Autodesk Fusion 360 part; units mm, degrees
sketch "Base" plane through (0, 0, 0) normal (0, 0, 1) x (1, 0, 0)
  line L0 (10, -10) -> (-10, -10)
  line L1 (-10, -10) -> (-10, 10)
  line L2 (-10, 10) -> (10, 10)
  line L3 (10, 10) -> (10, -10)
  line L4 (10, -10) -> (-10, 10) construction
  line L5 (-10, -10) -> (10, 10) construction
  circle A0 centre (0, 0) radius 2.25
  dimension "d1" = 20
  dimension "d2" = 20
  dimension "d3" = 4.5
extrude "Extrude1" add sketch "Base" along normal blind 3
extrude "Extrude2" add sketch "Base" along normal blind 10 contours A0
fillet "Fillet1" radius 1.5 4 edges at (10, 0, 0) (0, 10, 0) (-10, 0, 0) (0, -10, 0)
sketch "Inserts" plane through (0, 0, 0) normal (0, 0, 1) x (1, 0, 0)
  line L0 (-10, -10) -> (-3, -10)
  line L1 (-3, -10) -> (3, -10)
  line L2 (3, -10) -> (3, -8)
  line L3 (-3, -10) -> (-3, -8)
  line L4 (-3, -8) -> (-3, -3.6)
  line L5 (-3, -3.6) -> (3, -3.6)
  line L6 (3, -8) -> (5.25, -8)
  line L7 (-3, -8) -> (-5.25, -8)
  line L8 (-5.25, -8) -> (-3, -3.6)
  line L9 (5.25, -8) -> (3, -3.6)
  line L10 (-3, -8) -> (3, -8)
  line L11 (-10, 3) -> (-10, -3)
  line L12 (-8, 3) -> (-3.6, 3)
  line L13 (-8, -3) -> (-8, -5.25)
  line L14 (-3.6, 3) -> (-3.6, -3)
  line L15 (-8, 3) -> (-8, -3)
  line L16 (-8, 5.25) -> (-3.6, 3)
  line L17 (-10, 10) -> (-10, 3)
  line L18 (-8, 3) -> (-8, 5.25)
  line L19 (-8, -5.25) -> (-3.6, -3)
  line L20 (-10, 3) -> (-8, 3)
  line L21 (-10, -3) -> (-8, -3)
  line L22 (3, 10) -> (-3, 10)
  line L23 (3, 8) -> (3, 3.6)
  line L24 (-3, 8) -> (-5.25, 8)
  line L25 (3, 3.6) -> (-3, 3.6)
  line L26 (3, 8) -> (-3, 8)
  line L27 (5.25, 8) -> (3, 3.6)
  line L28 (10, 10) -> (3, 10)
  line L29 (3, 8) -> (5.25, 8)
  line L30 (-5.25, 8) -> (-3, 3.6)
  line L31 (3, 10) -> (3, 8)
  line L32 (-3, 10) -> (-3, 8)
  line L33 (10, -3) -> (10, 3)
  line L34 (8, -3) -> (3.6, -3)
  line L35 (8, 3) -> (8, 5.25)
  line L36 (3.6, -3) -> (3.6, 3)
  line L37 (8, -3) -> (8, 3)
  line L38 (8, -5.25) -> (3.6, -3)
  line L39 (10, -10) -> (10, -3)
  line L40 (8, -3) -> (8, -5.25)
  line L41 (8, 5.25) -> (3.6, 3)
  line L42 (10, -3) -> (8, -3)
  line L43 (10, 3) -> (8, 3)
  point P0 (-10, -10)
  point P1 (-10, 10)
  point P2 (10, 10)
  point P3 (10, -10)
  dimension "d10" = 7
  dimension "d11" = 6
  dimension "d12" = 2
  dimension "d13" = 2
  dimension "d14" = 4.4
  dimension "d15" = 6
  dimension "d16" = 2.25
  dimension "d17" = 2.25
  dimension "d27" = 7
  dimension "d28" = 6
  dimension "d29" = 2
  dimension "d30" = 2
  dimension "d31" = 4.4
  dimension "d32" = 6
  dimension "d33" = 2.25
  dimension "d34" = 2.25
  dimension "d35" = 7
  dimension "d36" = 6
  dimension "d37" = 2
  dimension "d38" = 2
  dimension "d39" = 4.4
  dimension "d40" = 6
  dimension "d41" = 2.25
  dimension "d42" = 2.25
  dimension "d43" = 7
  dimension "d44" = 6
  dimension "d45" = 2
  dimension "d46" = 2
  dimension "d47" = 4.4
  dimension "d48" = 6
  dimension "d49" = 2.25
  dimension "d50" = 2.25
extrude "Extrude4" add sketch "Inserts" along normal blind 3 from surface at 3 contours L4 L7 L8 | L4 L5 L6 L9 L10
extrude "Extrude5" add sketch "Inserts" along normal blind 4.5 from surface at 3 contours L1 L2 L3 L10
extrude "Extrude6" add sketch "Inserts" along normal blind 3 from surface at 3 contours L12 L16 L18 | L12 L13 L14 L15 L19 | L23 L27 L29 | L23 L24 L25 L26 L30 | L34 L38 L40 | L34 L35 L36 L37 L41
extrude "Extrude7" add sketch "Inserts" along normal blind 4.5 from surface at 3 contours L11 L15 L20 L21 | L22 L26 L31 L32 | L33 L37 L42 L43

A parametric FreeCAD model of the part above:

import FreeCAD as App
import Part
import Sketcher

V = App.Vector
Q = App.Units.Quantity


def edges_at(feature, points):
    """Names of the edges that pass closest to the given points."""
    edges = feature.Shape.Edges
    near = lambda p: min(range(len(edges)), key=lambda i: edges[i].distToShape(Part.Vertex(*p))[0])
    return sorted({f"Edge{near(p) + 1}" for p in points})


def add_polygon(sketch, points):
    """Adds a closed chain of lines whose ends are joined by coincident constraints."""
    first, n = sketch.GeometryCount, len(points)
    for a, b in zip(points, points[1:] + points[:1]):
        sketch.addGeometry(Part.LineSegment(App.Vector(*a, 0), App.Vector(*b, 0)), False)
    for i in range(n):
        sketch.addConstraint(Sketcher.Constraint("Coincident", first + i, 2, first + (i + 1) % n, 1))

doc = App.newDocument("Part")
body = doc.addObject("PartDesign::Body", "Body")

# Sketch on XY plane
sketch1 = doc.addObject("Sketcher::SketchObject", "Sketch")
body.addObject(sketch1)
sketch1.AttachmentSupport = (doc.XY_Plane, [""])
sketch1.MapMode = "FlatFace"
add_polygon(sketch1, [(-10, -10), (10, -10), (10, 10), (-10, 10)])  # lines 0-3
sketch1.addGeometry(Part.Circle(V(0, 0, 0), V(0, 0, 1), 2.25), False)  # 4
sketch1.addConstraint([
    Sketcher.Constraint("Horizontal", 0),
    Sketcher.Constraint("Vertical", 1),
    Sketcher.Constraint("Horizontal", 2),
    Sketcher.Constraint("Vertical", 3),
    Sketcher.Constraint("Coincident", 4, 3, -1, 1),
    Sketcher.Constraint("Symmetric", 0, 2, 2, 2, -1, 1),
    Sketcher.Constraint("Equal", 2, 1),
    Sketcher.Constraint("Diameter", 4, Q("4.5 mm")),
    Sketcher.Constraint("DistanceX", 0, 1, 0, 2, Q("20 mm")),
])
pad1 = doc.addObject("PartDesign::Pad", "Pad")
body.addObject(pad1)
pad1.Profile = sketch1
pad1.Length = 3

# Sketch on XY plane
sketch2 = doc.addObject("Sketcher::SketchObject", "Sketch001")
body.addObject(sketch2)
sketch2.AttachmentSupport = (doc.XY_Plane, [""])
sketch2.MapMode = "FlatFace"
sketch2.addGeometry(Part.Circle(V(0, 0, 0), V(0, 0, 1), 2.25), False)
sketch2.addConstraint([
    Sketcher.Constraint("Coincident", 0, 3, -1, 1),
    Sketcher.Constraint("Diameter", 0, Q("4.5 mm")),
])
pad2 = doc.addObject("PartDesign::Pad", "Pad001")
body.addObject(pad2)
pad2.Profile = sketch2
pad2.Length = 10
doc.recompute()

fillet = doc.addObject("PartDesign::Fillet", "Fillet")
body.addObject(fillet)
fillet.Base = (pad2, edges_at(pad2, [
    (10, 0, 0),
    (0, 10, 0),
    (-10, 0, 0),
    (0, -10, 0),
]))
fillet.Radius = 1.5

# Sketch on XY plane
sketch3 = doc.addObject("Sketcher::SketchObject", "Sketch002")
body.addObject(sketch3)
sketch3.AttachmentSupport = (doc.XY_Plane, [""])
sketch3.MapMode = "FlatFace"
sketch3.AttachmentOffset = App.Placement(V(0, 0, 3), App.Rotation())
add_polygon(sketch3, [(-5.25, -8), (5.25, -8), (3, -3.6), (-3, -3.6)])  # lines 0-3
sketch3.addConstraint([
    Sketcher.Constraint("Horizontal", 0),
    Sketcher.Constraint("Horizontal", 2),
    Sketcher.Constraint("Equal", 1, 3),
    Sketcher.Constraint("DistanceX", 2, 2, 2, 1, Q("6 mm")),
    Sketcher.Constraint("DistanceY", 0, 2, 1, 2, Q("4.4 mm")),
    Sketcher.Constraint("DistanceX", 1, 2, 0, 2, Q("2.25 mm")),
    Sketcher.Constraint("DistanceY", 0, 2, -1, 1, Q("8 mm")),
    Sketcher.Constraint("DistanceX", -1, 1, 1, 2, Q("3 mm")),
])
pad3 = doc.addObject("PartDesign::Pad", "Pad002")
body.addObject(pad3)
pad3.Profile = sketch3
pad3.Length = 3

# Sketch on XY plane
sketch4 = doc.addObject("Sketcher::SketchObject", "Sketch003")
body.addObject(sketch4)
sketch4.AttachmentSupport = (doc.XY_Plane, [""])
sketch4.MapMode = "FlatFace"
sketch4.AttachmentOffset = App.Placement(V(0, 0, 3), App.Rotation())
add_polygon(sketch4, [(-3, -8), (-3, -10), (3, -10), (3, -8)])  # lines 0-3
sketch4.addConstraint([
    Sketcher.Constraint("Vertical", 0),
    Sketcher.Constraint("Horizontal", 1),
    Sketcher.Constraint("Vertical", 2),
    Sketcher.Constraint("Horizontal", 3),
    Sketcher.Constraint("DistanceX", 1, 1, 1, 2, Q("6 mm")),
    Sketcher.Constraint("DistanceY", 0, 2, 0, 1, Q("2 mm")),
    Sketcher.Constraint("DistanceX", 0, 2, -1, 1, Q("3 mm")),
    Sketcher.Constraint("DistanceY", 0, 2, -1, 1, Q("10 mm")),
])
pad4 = doc.addObject("PartDesign::Pad", "Pad003")
body.addObject(pad4)
pad4.Profile = sketch4
pad4.Length = 4.5

# Sketch on XY plane
sketch5 = doc.addObject("Sketcher::SketchObject", "Sketch004")
body.addObject(sketch5)
sketch5.AttachmentSupport = (doc.XY_Plane, [""])
sketch5.MapMode = "FlatFace"
sketch5.AttachmentOffset = App.Placement(V(0, 0, 3), App.Rotation())
add_polygon(sketch5, [(-8, 5.25), (-8, -5.25), (-3.6, -3), (-3.6, 3)])  # lines 0-3
add_polygon(sketch5, [(5.25, 8), (-5.25, 8), (-3, 3.6), (3, 3.6)])  # lines 4-7
add_polygon(sketch5, [(8, -5.25), (8, 5.25), (3.6, 3), (3.6, -3)])  # lines 8-11
sketch5.addConstraint([
    Sketcher.Constraint("Vertical", 0),
    Sketcher.Constraint("Vertical", 2),
    Sketcher.Constraint("Horizontal", 4),
    Sketcher.Constraint("Horizontal", 6),
    Sketcher.Constraint("Vertical", 8),
    Sketcher.Constraint("Vertical", 10),
    Sketcher.Constraint("Symmetric", 0, 2, 8, 2, -1, 1),
    Sketcher.Constraint("Symmetric", 1, 2, 9, 2, -1, 1),
    Sketcher.Constraint("Perpendicular", 1, 5),
    Sketcher.Constraint("Perpendicular", 3, 7),
    Sketcher.Constraint("Perpendicular", 7, 11),
    Sketcher.Constraint("Horizontal", 3, 2, 8, 2),
    Sketcher.Constraint("Horizontal", 2, 2, 9, 2),
    Sketcher.Constraint("Horizontal", 1, 2, 10, 2),
    Sketcher.Constraint("Equal", 4, 0),
    Sketcher.Constraint("Equal", 6, 2),
    Sketcher.Constraint("DistanceX", 6, 1, 6, 2, Q("6 mm")),
    Sketcher.Constraint("DistanceX", 0, 2, 1, 2, Q("4.4 mm")),
    Sketcher.Constraint("DistanceY", 0, 2, 1, 2, Q("2.25 mm")),
    Sketcher.Constraint("DistanceX", 0, 2, -1, 1, Q("8 mm")),
    Sketcher.Constraint("DistanceY", -1, 1, 4, 2, Q("8 mm")),
    Sketcher.Constraint("DistanceX", 5, 2, -1, 1, Q("3 mm")),
])
pad5 = doc.addObject("PartDesign::Pad", "Pad004")
body.addObject(pad5)
pad5.Profile = sketch5
pad5.Length = 3

# Sketch on XY plane
sketch6 = doc.addObject("Sketcher::SketchObject", "Sketch005")
body.addObject(sketch6)
sketch6.AttachmentSupport = (doc.XY_Plane, [""])
sketch6.MapMode = "FlatFace"
sketch6.AttachmentOffset = App.Placement(V(0, 0, 3), App.Rotation())
add_polygon(sketch6, [(-8, 3), (-10, 3), (-10, -3), (-8, -3)])  # lines 0-3
add_polygon(sketch6, [(3, 8), (3, 10), (-3, 10), (-3, 8)])  # lines 4-7
add_polygon(sketch6, [(8, -3), (10, -3), (10, 3), (8, 3)])  # lines 8-11
sketch6.addConstraint([
    Sketcher.Constraint("Horizontal", 0),
    Sketcher.Constraint("Vertical", 1),
    Sketcher.Constraint("Horizontal", 2),
    Sketcher.Constraint("Vertical", 3),
    Sketcher.Constraint("Vertical", 4),
    Sketcher.Constraint("Horizontal", 5),
    Sketcher.Constraint("Vertical", 6),
    Sketcher.Constraint("Horizontal", 7),
    Sketcher.Constraint("Horizontal", 8),
    Sketcher.Constraint("Vertical", 9),
    Sketcher.Constraint("Horizontal", 10),
    Sketcher.Constraint("Vertical", 11),
    Sketcher.Constraint("Symmetric", 0, 2, 8, 2, -1, 1),
    Sketcher.Constraint("Symmetric", 2, 2, 10, 2, -1, 1),
    Sketcher.Constraint("Horizontal", 2, 2, 8, 2),
    Sketcher.Constraint("Equal", 7, 1),
    Sketcher.Constraint("Equal", 10, 4),
    Sketcher.Constraint("DistanceX", 0, 2, 0, 1, Q("2 mm")),
    Sketcher.Constraint("DistanceX", 5, 2, 5, 1, Q("6 mm")),
    Sketcher.Constraint("DistanceY", 3, 2, 4, 2, Q("7 mm")),
    Sketcher.Constraint("DistanceX", 0, 2, 5, 2, Q("7 mm")),
    Sketcher.Constraint("DistanceX", 7, 2, 8, 2, Q("7 mm")),
])
pad6 = doc.addObject("PartDesign::Pad", "Pad005")
body.addObject(pad6)
pad6.Profile = sketch6
pad6.Length = 4.5

doc.recompute()
